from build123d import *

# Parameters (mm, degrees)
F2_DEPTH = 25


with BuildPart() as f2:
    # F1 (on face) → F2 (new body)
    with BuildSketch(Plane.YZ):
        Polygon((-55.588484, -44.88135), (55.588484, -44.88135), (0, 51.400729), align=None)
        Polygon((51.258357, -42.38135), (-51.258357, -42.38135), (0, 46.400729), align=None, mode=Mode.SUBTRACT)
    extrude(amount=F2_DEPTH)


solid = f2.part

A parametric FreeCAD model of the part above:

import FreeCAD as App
import Part
import Sketcher
Q = App.Units.Quantity

doc = App.newDocument("Part")
body = doc.addObject("PartDesign::Body", "Body")

# Sketch on YZ plane
sketch1 = body.newObject("Sketcher::SketchObject", "Sketch")
sketch1.AttachmentSupport = (doc.getObject("YZ_Plane"), [""])
sketch1.MapMode = "FlatFace"
sketch1.addGeometry(Part.LineSegment(App.Vector(-55.588484, -44.88135, 0), App.Vector(55.588484, -44.88135, 0)), False)
sketch1.addGeometry(Part.LineSegment(App.Vector(55.588484, -44.88135, 0), App.Vector(0, 51.400729, 0)), False)
sketch1.addGeometry(Part.LineSegment(App.Vector(0, 51.400729, 0), App.Vector(-55.588484, -44.88135, 0)), False)
sketch1.addGeometry(Part.LineSegment(App.Vector(0, 46.400729, 0), App.Vector(51.258357, -42.38135, 0)), False)
sketch1.addGeometry(Part.LineSegment(App.Vector(51.258357, -42.38135, 0), App.Vector(-51.258357, -42.38135, 0)), False)
sketch1.addGeometry(Part.LineSegment(App.Vector(-51.258357, -42.38135, 0), App.Vector(0, 46.400729, 0)), False)
sketch1.addConstraint(Sketcher.Constraint("Coincident", 0, 2, 1, 1))
sketch1.addConstraint(Sketcher.Constraint("Coincident", 1, 2, 2, 1))
sketch1.addConstraint(Sketcher.Constraint("Coincident", 2, 2, 0, 1))
sketch1.addConstraint(Sketcher.Constraint("Coincident", 3, 2, 4, 1))
sketch1.addConstraint(Sketcher.Constraint("Coincident", 4, 2, 5, 1))
sketch1.addConstraint(Sketcher.Constraint("Coincident", 5, 2, 3, 1))
sketch1.addConstraint(Sketcher.Constraint("Horizontal", 0))
sketch1.addConstraint(Sketcher.Constraint("Horizontal", 4))
sketch1.addConstraint(Sketcher.Constraint("PointOnObject", 1, 2, -2))
sketch1.addConstraint(Sketcher.Constraint("PointOnObject", 5, 2, -2))
sketch1.addConstraint(Sketcher.Constraint("Parallel", 1, 3))
sketch1.addConstraint(Sketcher.Constraint("Parallel", 2, 5))
sketch1.addConstraint(Sketcher.Constraint("Equal", 1, 2))
sketch1.addConstraint(Sketcher.Constraint("Angle", 1, Q("120 deg")))
sketch1.addConstraint(Sketcher.Constraint("DistanceY", 5, 2, 1, 2, Q("5 mm")))
sketch1.addConstraint(Sketcher.Constraint("DistanceY", 0, 2, 3, 2, Q("2.5 mm")))
sketch1.addConstraint(Sketcher.Constraint("DistanceX", 0, 1, 0, 2, Q("111.176968 mm")))
sketch1.addConstraint(Sketcher.Constraint("DistanceY", 0, 2, -1, 1, Q("44.88135 mm")))
pad1 = body.newObject("PartDesign::Pad", "Pad")
pad1.Profile = sketch1
pad1.Length = 25

doc.recompute()
